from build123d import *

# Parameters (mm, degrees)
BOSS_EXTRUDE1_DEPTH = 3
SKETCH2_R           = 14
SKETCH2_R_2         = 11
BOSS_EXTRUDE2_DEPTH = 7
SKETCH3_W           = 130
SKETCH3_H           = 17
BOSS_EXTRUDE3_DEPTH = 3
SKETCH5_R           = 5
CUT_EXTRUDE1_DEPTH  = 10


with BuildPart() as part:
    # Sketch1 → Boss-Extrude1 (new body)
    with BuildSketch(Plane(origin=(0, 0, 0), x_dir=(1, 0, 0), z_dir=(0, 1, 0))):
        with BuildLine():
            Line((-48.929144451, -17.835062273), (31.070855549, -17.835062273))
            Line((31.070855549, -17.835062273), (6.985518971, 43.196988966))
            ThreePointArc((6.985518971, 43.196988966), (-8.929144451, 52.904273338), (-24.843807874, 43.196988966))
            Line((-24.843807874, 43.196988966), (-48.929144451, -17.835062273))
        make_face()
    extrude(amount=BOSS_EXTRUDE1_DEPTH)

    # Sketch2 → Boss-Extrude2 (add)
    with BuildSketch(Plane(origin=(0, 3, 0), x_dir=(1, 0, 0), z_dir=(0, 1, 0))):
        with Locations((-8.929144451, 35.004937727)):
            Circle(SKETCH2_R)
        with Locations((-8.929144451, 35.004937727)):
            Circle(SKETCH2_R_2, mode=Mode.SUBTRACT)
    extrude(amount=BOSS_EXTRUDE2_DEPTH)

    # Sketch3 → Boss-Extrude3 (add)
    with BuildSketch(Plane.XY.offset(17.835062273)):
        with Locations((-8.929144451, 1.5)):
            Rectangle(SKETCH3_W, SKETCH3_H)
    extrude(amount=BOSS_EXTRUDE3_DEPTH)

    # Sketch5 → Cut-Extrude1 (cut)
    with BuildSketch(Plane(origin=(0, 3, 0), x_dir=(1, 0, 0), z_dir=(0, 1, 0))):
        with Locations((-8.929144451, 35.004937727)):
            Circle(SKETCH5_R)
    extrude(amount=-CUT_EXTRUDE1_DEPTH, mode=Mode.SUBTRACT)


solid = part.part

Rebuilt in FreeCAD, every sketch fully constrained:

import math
import FreeCAD as App
import Part
import Sketcher

V = App.Vector

doc = App.newDocument("Part")
params = doc.addObject("Spreadsheet::Sheet", "Params")
for row, (alias, value) in enumerate([
    ("sketch1_width", "80 mm"),
    ("pad1_length", "3 mm"),
    ("sketch2_diameter", "28 mm"),
    ("sketch2_diameter2", "22 mm"),
    ("pad2_length", "7 mm"),
    ("sketch3_width", "130 mm"),
    ("sketch3_height", "17 mm"),
    ("pad3_length", "3 mm"),
    ("sketch4_diameter", "10 mm"),
    ("pocket1_length", "10 mm"),
], start=1):
    params.set(f"A{row}", alias)
    params.set(f"B{row}", "=" + value)
    params.setAlias(f"B{row}", alias)

body = doc.addObject("PartDesign::Body", "Body")

sketch1 = body.newObject("Sketcher::SketchObject", "Sketch")
sketch1.AttachmentSupport = (doc.getObject("XZ_Plane"), [""])
sketch1.MapMode = "FlatFace"
sketch1.addGeometry(Part.LineSegment(V(-49, 18, 0), V(31, 18, 0)), False)
sketch1.addGeometry(Part.LineSegment(V(31, 18, 0), V(7, -43, 0)), False)
sketch1.addGeometry(Part.ArcOfCircle(Part.Circle(V(-9, -35, 0), V(0, 0, 1), 18), math.radians(-153), math.radians(-27)), False)
sketch1.addGeometry(Part.LineSegment(V(-25, -43, 0), V(-49, 18, 0)), False)
sketch1.addConstraint(Sketcher.Constraint("Coincident", 0, 2, 1, 1))
sketch1.addConstraint(Sketcher.Constraint("Coincident", 1, 2, 2, 2))
sketch1.addConstraint(Sketcher.Constraint("Coincident", 2, 1, 3, 1))
sketch1.addConstraint(Sketcher.Constraint("Coincident", 3, 2, 0, 1))
sketch1.addConstraint(Sketcher.Constraint("Horizontal", 0))
sketch1.addConstraint(Sketcher.Constraint("Horizontal", 1, 2, 2, 1))
sketch1.addConstraint(Sketcher.Constraint("Equal", 1, 3))
sketch1.addConstraint(Sketcher.Constraint("DistanceX", 0, 1, 0, 2, 80.0))
sketch1.addConstraint(Sketcher.Constraint("DistanceY", 2, 3, 0, 2, 52.84))
sketch1.addConstraint(Sketcher.Constraint("Radius", 2, 17.899336))
sketch1.addConstraint(Sketcher.Constraint("Distance", 1, 65.612611))
sketch1.addConstraint(Sketcher.Constraint("DistanceX", -1, 1, 1, 2, 6.985519))
sketch1.addConstraint(Sketcher.Constraint("DistanceY", 1, 2, -1, 1, 43.196989))
sketch1.setExpression("Constraints[7]", "Params.sketch1_width")
pad1 = body.newObject("PartDesign::Pad", "Pad")
pad1.Profile = sketch1
pad1.setExpression("Length", "Params.pad1_length")
pad1.Reversed = True

sketch2 = body.newObject("Sketcher::SketchObject", "Sketch001")
sketch2.AttachmentSupport = (doc.getObject("XZ_Plane"), [""])
sketch2.MapMode = "FlatFace"
sketch2.AttachmentOffset = App.Placement(V(0, 0, -3), App.Rotation())
sketch2.addGeometry(Part.Circle(V(-9, -35, 0), V(0, 0, 1), 14), False)
sketch2.addGeometry(Part.Circle(V(-9, -35, 0), V(0, 0, 1), 11), False)
sketch2.addConstraint(Sketcher.Constraint("Coincident", 1, 3, 0, 3))
sketch2.addConstraint(Sketcher.Constraint("Diameter", 0, 28.0))
sketch2.addConstraint(Sketcher.Constraint("Diameter", 1, 22.0))
sketch2.addConstraint(Sketcher.Constraint("DistanceX", 0, 3, -1, 1, 8.929144))
sketch2.addConstraint(Sketcher.Constraint("DistanceY", 0, 3, -1, 1, 35.004938))
sketch2.setExpression("Constraints[1]", "Params.sketch2_diameter")
sketch2.setExpression("Constraints[2]", "Params.sketch2_diameter2")
pad2 = body.newObject("PartDesign::Pad", "Pad001")
pad2.Profile = sketch2
pad2.setExpression("Length", "Params.pad2_length")
pad2.Reversed = True

sketch3 = body.newObject("Sketcher::SketchObject", "Sketch002")
sketch3.AttachmentSupport = (doc.getObject("XY_Plane"), [""])
sketch3.MapMode = "FlatFace"
sketch3.AttachmentOffset = App.Placement(V(0, 0, 17.835062), App.Rotation())
sketch3.addGeometry(Part.LineSegment(V(-74, 10, 0), V(-74, -7, 0)), False)
sketch3.addGeometry(Part.LineSegment(V(-74, -7, 0), V(56, -7, 0)), False)
sketch3.addGeometry(Part.LineSegment(V(56, -7, 0), V(56, 10, 0)), False)
sketch3.addGeometry(Part.LineSegment(V(56, 10, 0), V(-74, 10, 0)), False)
sketch3.addConstraint(Sketcher.Constraint("Coincident", 0, 2, 1, 1))
sketch3.addConstraint(Sketcher.Constraint("Coincident", 1, 2, 2, 1))
sketch3.addConstraint(Sketcher.Constraint("Coincident", 2, 2, 3, 1))
sketch3.addConstraint(Sketcher.Constraint("Coincident", 3, 2, 0, 1))
sketch3.addConstraint(Sketcher.Constraint("Vertical", 0))
sketch3.addConstraint(Sketcher.Constraint("Horizontal", 1))
sketch3.addConstraint(Sketcher.Constraint("Vertical", 2))
sketch3.addConstraint(Sketcher.Constraint("Horizontal", 3))
sketch3.addConstraint(Sketcher.Constraint("DistanceX", 1, 1, 1, 2, 130.0))
sketch3.addConstraint(Sketcher.Constraint("DistanceY", 0, 2, 0, 1, 17.0))
sketch3.addConstraint(Sketcher.Constraint("DistanceY", 0, 2, -1, 1, 7.0))
sketch3.addConstraint(Sketcher.Constraint("DistanceX", 0, 2, -1, 1, 73.929144))
sketch3.setExpression("Constraints[8]", "Params.sketch3_width")
sketch3.setExpression("Constraints[9]", "Params.sketch3_height")
pad3 = body.newObject("PartDesign::Pad", "Pad002")
pad3.Profile = sketch3
pad3.setExpression("Length", "Params.pad3_length")

sketch4 = body.newObject("Sketcher::SketchObject", "Sketch003")
sketch4.AttachmentSupport = (doc.getObject("XZ_Plane"), [""])
sketch4.MapMode = "FlatFace"
sketch4.AttachmentOffset = App.Placement(V(0, 0, -3), App.Rotation())
sketch4.addGeometry(Part.Circle(V(-9, -35, 0), V(0, 0, 1), 5), False)
sketch4.addConstraint(Sketcher.Constraint("Diameter", 0, 10.0))
sketch4.addConstraint(Sketcher.Constraint("DistanceX", 0, 3, -1, 1, 8.929144))
sketch4.addConstraint(Sketcher.Constraint("DistanceY", 0, 3, -1, 1, 35.004938))
sketch4.setExpression("Constraints[0]", "Params.sketch4_diameter")
pocket1 = body.newObject("PartDesign::Pocket", "Pocket")
pocket1.Profile = sketch4
pocket1.setExpression("Length", "Params.pocket1_length")
pocket1.Reversed = True

doc.recompute()
